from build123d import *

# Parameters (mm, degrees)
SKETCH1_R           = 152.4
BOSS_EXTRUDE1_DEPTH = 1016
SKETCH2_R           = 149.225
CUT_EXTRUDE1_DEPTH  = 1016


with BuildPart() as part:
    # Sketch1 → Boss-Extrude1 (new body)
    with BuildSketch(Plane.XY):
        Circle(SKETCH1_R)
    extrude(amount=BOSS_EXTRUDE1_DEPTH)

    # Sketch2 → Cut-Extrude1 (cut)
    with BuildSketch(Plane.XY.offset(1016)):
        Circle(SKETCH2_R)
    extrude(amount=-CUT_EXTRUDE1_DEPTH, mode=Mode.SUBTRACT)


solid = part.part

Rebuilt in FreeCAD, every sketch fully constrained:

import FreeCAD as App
import Part
import Sketcher

V = App.Vector
Q = App.Units.Quantity

doc = App.newDocument("Part")
params = doc.addObject("Spreadsheet::Sheet", "Params")
for row, (alias, value) in enumerate([
    ("sketch1_diameter", "12 in"),
    ("pad1_length", "40 in"),
    ("sketch2_diameter", "11.75 in"),
    ("pocket1_length", "40 in"),
], start=1):
    params.set(f"A{row}", alias)
    params.set(f"B{row}", "=" + value)
    params.setAlias(f"B{row}", alias)

body = doc.addObject("PartDesign::Body", "Body")

sketch1 = body.newObject("Sketcher::SketchObject", "Sketch")
sketch1.AttachmentSupport = (doc.getObject("XY_Plane"), [""])
sketch1.MapMode = "FlatFace"
sketch1.addGeometry(Part.Circle(V(0, 0, 0), V(0, 0, 1), 152), False)
sketch1.addConstraint(Sketcher.Constraint("Coincident", 0, 3, -1, 1))
sketch1.addConstraint(Sketcher.Constraint("Diameter", 0, Q("12 in")))
sketch1.setExpression("Constraints[1]", "Params.sketch1_diameter")
pad1 = body.newObject("PartDesign::Pad", "Pad")
pad1.Profile = sketch1
pad1.setExpression("Length", "Params.pad1_length")

sketch2 = body.newObject("Sketcher::SketchObject", "Sketch001")
sketch2.AttachmentSupport = (doc.getObject("XY_Plane"), [""])
sketch2.MapMode = "FlatFace"
sketch2.AttachmentOffset = App.Placement(V(0, 0, 40 * 25.4), App.Rotation())
sketch2.addGeometry(Part.Circle(V(0, 0, 0), V(0, 0, 1), 149), False)
sketch2.addConstraint(Sketcher.Constraint("Coincident", 0, 3, -1, 1))
sketch2.addConstraint(Sketcher.Constraint("Diameter", 0, Q("11.75 in")))
sketch2.setExpression("Constraints[1]", "Params.sketch2_diameter")
pocket1 = body.newObject("PartDesign::Pocket", "Pocket")
pocket1.Profile = sketch2
pocket1.setExpression("Length", "Params.pocket1_length")

doc.recompute()
